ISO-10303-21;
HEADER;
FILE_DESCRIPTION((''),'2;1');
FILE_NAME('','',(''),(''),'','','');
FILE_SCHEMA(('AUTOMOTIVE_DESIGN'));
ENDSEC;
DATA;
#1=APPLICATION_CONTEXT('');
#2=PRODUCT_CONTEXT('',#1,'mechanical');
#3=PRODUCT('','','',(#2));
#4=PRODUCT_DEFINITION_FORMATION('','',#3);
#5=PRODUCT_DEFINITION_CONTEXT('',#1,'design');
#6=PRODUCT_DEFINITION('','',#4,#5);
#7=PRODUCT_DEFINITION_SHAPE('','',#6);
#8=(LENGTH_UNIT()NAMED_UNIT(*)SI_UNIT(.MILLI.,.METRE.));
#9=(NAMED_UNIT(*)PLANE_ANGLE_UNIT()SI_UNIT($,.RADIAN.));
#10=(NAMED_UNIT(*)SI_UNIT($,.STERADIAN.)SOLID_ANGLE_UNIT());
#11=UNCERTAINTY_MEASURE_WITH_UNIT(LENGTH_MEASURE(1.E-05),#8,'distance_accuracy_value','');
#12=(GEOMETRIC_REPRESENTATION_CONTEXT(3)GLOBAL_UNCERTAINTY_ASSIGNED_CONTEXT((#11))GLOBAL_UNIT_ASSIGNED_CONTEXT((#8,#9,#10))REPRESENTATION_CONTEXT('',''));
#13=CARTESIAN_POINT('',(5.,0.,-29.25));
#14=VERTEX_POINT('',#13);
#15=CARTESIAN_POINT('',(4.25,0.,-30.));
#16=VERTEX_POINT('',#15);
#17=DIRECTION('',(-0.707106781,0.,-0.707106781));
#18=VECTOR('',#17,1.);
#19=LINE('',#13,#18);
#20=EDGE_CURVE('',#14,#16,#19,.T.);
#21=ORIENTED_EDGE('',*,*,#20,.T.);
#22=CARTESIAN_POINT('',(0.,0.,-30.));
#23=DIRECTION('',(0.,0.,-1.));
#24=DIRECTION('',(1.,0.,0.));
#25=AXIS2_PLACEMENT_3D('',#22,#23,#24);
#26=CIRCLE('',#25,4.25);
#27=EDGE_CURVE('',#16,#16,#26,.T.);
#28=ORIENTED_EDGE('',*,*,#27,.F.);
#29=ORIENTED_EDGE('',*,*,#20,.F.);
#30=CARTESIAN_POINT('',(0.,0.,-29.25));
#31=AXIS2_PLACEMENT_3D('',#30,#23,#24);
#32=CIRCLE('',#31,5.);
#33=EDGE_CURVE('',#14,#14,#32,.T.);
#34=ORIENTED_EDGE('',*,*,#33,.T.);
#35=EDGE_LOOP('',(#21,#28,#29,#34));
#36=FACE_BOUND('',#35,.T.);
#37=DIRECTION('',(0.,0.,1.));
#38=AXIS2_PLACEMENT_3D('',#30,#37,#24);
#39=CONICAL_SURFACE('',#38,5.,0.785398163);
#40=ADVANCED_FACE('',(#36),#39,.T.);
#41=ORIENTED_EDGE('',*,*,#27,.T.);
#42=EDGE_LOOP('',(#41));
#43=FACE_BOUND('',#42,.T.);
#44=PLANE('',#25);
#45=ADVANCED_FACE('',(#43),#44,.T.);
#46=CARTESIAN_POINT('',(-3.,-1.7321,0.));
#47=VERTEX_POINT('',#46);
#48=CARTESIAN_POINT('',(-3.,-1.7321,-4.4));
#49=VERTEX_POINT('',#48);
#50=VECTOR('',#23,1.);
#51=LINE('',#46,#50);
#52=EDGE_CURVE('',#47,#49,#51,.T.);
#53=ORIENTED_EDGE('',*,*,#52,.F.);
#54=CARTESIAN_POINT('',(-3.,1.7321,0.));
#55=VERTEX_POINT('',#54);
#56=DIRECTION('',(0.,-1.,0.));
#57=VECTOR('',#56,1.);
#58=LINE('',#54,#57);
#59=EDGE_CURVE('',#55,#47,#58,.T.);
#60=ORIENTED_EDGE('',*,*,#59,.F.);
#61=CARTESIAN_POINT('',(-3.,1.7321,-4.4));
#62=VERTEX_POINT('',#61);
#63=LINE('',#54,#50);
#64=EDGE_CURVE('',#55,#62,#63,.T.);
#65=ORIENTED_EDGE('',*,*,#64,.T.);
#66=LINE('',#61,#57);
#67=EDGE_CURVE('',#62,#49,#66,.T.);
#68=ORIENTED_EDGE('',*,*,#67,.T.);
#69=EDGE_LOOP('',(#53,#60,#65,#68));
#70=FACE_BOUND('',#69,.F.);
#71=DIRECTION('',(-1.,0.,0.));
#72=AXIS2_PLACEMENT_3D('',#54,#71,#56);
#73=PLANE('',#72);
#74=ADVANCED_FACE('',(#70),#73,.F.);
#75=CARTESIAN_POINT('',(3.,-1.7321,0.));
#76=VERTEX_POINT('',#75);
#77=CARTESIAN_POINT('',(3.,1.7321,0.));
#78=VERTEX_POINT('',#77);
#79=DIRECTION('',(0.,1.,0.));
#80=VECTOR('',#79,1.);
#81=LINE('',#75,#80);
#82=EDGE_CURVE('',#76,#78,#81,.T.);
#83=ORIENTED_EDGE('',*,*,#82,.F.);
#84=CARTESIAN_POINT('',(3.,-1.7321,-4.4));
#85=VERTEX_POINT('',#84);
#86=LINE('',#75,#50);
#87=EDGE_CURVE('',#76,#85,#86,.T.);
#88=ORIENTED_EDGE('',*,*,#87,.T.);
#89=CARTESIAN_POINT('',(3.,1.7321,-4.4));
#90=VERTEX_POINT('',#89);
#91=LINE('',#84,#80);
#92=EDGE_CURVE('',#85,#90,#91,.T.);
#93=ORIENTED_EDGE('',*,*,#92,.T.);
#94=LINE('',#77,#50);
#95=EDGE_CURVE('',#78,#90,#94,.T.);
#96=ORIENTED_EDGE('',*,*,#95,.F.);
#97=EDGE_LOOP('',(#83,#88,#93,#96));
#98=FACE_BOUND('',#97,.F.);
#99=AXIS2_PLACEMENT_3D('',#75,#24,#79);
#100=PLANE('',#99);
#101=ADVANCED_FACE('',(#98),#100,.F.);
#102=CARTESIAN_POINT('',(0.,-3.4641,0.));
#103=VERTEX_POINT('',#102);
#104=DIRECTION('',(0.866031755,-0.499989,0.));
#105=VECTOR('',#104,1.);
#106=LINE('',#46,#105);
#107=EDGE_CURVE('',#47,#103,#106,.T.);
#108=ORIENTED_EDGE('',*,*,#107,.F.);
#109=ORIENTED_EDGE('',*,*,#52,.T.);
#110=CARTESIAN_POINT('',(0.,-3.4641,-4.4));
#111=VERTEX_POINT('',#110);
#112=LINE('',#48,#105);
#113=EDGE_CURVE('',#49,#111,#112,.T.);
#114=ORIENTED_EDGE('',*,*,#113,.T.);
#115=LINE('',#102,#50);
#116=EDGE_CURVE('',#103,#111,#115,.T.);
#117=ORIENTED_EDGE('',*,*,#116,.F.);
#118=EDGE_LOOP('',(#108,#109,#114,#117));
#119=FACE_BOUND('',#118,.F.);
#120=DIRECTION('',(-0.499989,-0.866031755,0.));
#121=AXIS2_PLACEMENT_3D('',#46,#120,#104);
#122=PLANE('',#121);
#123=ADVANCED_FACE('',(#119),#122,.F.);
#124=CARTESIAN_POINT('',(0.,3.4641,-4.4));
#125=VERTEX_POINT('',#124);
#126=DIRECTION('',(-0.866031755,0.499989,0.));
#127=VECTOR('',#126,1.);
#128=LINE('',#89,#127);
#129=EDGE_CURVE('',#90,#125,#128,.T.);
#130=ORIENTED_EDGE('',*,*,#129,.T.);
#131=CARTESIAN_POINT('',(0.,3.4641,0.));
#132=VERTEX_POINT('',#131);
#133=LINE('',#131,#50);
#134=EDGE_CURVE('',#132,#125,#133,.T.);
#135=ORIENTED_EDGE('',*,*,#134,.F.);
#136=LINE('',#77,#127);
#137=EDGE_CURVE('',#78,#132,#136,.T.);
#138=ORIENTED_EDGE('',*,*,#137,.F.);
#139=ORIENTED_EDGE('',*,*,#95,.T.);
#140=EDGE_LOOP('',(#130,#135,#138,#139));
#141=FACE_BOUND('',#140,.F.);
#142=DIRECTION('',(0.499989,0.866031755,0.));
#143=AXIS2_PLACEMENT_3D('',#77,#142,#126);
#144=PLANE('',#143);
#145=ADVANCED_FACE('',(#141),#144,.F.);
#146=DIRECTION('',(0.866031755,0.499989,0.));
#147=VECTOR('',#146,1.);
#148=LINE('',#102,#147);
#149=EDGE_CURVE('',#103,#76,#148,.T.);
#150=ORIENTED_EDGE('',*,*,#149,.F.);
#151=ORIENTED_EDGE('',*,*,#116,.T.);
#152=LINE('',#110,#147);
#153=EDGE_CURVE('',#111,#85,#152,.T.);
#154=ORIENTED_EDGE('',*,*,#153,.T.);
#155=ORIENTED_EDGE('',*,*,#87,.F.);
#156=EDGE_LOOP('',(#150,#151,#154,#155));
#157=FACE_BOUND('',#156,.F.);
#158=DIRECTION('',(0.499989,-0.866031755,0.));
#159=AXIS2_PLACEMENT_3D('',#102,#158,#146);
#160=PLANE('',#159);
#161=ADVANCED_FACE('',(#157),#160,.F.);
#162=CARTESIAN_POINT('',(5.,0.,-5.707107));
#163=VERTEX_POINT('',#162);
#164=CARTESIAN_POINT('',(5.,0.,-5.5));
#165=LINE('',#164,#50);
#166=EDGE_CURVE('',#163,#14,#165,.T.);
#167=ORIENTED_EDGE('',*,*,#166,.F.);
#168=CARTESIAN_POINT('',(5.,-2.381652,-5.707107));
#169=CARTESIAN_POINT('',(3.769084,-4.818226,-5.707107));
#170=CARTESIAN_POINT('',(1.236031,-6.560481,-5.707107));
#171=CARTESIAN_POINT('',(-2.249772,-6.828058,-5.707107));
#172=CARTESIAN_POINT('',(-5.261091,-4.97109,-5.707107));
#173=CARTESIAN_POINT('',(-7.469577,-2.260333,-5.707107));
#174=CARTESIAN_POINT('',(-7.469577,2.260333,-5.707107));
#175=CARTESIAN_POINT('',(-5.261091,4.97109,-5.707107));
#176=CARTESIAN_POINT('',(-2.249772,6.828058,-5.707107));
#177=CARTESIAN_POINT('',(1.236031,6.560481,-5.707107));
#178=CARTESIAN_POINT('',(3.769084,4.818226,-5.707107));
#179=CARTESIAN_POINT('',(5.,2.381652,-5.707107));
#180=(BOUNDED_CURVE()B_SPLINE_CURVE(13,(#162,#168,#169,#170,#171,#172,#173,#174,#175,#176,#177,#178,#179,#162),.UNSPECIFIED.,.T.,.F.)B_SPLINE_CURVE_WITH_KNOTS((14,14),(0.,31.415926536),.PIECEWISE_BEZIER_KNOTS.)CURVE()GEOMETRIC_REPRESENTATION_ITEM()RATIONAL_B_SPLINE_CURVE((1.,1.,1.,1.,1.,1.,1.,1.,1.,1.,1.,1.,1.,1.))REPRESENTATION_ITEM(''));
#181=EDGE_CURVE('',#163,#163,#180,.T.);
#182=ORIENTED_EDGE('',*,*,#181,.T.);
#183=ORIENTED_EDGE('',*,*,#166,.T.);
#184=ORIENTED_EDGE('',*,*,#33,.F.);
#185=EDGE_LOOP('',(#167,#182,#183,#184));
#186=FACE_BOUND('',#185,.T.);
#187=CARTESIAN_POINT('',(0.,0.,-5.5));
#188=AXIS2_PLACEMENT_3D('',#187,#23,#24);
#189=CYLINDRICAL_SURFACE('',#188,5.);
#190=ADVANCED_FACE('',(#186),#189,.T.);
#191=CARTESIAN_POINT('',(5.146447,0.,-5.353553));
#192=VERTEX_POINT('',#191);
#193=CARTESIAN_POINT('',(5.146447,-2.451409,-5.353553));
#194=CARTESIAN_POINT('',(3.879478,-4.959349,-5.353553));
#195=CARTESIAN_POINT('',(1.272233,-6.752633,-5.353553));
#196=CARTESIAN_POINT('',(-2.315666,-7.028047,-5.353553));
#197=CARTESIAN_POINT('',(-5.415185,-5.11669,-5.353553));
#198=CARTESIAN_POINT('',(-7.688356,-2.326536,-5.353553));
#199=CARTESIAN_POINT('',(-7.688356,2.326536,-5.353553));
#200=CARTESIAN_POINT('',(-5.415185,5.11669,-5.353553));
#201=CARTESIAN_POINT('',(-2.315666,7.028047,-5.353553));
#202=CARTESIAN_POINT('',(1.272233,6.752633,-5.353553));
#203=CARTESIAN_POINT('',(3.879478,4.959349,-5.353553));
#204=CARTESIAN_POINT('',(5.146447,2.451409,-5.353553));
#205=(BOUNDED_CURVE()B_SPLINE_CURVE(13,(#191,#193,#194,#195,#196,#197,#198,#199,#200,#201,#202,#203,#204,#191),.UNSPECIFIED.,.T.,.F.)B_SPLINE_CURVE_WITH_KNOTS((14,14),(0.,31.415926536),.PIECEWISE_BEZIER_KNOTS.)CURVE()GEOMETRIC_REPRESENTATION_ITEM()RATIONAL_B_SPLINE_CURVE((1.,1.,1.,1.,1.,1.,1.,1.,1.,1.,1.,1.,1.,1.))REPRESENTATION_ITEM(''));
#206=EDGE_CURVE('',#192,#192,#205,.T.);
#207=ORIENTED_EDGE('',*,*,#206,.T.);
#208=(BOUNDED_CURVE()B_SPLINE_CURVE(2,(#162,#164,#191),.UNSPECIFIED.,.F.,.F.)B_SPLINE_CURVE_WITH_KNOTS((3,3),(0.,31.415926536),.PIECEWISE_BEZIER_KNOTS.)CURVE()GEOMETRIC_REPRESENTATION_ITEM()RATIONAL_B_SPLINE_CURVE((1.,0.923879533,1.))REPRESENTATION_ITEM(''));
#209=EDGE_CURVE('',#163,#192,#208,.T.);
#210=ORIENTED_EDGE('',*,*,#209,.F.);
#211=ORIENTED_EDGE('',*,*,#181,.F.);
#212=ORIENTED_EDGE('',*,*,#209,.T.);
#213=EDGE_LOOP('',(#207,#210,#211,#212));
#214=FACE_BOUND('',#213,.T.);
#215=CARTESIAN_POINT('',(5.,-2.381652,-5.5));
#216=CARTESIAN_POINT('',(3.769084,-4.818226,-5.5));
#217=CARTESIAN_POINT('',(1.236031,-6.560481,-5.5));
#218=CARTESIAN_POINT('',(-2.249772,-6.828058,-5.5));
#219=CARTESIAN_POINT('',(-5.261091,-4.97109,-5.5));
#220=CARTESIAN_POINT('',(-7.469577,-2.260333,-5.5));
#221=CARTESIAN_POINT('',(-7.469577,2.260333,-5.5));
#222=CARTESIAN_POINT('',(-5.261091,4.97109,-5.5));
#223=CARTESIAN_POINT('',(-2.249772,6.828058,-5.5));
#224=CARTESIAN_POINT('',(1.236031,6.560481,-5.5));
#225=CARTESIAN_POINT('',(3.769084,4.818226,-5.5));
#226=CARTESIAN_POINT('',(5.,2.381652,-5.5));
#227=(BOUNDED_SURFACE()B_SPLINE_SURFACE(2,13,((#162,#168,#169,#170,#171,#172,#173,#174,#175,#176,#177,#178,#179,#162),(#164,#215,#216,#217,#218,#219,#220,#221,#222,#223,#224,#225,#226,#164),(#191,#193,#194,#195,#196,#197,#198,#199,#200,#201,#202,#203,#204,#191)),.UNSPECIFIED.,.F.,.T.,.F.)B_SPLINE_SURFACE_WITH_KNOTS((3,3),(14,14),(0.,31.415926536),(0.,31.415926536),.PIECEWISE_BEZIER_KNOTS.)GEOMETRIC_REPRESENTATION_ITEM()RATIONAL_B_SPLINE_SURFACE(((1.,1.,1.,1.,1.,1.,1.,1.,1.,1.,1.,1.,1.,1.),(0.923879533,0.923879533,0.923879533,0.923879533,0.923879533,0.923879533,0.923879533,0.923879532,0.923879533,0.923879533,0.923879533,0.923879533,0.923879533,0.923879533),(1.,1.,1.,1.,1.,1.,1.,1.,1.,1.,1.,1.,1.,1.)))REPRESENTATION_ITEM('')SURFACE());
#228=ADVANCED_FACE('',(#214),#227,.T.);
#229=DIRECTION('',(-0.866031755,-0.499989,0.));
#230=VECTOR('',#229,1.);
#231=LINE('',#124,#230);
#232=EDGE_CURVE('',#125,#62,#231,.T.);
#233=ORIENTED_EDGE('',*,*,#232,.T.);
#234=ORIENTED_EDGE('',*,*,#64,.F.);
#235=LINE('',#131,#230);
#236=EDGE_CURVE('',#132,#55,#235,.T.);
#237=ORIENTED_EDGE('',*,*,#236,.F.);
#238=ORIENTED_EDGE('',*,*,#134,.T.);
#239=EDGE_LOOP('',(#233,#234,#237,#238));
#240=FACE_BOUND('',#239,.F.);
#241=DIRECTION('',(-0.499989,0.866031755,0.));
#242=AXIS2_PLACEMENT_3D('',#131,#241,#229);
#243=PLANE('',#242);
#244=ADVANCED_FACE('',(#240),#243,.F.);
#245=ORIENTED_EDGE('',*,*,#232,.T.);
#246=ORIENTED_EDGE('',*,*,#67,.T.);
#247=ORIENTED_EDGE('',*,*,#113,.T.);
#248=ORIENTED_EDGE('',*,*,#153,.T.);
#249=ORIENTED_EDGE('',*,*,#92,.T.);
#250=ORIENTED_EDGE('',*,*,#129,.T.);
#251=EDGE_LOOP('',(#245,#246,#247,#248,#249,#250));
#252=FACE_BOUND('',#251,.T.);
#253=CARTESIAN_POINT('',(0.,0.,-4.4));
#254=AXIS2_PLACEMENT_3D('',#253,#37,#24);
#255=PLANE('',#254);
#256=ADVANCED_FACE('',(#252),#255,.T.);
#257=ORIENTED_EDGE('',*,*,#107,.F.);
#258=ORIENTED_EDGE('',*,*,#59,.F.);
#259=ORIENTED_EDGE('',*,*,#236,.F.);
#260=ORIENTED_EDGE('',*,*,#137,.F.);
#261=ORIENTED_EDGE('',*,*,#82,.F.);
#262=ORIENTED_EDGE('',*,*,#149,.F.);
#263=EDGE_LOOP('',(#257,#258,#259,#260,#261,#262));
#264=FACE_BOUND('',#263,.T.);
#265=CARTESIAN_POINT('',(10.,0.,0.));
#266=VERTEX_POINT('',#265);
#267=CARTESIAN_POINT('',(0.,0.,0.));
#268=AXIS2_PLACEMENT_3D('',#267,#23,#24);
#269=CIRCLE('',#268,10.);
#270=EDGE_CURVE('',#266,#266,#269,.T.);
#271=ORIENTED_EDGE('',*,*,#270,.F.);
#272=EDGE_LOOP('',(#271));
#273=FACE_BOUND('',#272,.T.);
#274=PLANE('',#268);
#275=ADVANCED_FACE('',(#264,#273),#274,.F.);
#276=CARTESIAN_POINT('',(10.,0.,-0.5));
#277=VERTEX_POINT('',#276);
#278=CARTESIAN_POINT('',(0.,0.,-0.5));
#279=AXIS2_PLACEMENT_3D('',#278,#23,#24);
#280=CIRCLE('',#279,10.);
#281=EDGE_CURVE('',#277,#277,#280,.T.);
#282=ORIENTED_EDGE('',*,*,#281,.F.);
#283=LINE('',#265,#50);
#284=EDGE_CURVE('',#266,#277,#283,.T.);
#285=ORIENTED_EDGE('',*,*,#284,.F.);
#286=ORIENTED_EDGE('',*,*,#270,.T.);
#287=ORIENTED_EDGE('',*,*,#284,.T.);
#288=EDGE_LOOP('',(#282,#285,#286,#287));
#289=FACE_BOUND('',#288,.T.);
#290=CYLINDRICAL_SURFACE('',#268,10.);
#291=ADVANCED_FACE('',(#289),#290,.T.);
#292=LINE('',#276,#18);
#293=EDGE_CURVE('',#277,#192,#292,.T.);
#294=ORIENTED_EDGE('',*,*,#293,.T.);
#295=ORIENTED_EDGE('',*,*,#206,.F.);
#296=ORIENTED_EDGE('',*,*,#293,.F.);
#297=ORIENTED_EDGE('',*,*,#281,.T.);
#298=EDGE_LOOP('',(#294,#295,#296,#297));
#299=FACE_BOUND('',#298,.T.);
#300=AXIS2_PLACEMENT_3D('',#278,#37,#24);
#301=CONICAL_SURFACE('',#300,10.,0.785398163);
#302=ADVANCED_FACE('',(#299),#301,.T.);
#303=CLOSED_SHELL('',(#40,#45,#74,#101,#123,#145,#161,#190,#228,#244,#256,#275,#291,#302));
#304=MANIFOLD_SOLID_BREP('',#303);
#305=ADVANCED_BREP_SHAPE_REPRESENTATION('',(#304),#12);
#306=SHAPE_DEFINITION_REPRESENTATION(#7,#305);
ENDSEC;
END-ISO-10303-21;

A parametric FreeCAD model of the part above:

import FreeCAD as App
import Part
import Sketcher
from FreeCAD import Vector
Q = App.Units.Quantity


def edges_at(feature, points):
    """Names of the edges that pass closest to the given points."""
    edges = feature.Shape.Edges
    near = lambda p: min(range(len(edges)), key=lambda i: edges[i].distToShape(Part.Vertex(*p))[0])
    return sorted({f"Edge{near(p) + 1}" for p in points})


def add_polygon(sketch, points):
    """Adds a closed chain of lines whose ends are joined by coincident constraints."""
    first, n = sketch.GeometryCount, len(points)
    for a, b in zip(points, points[1:] + points[:1]):
        sketch.addGeometry(Part.LineSegment(App.Vector(*a, 0), App.Vector(*b, 0)), False)
    for i in range(n):
        sketch.addConstraint(Sketcher.Constraint("Coincident", first + i, 2, first + (i + 1) % n, 1))

doc = App.newDocument("Part")
body = doc.addObject("PartDesign::Body", "Body")

sketch1 = doc.addObject("Sketcher::SketchObject", "Sketch")
body.addObject(sketch1)
sketch1.AttachmentSupport = (doc.XZ_Plane, [""])
sketch1.MapMode = "FlatFace"
add_polygon(sketch1, [(5, -5.5), (5, -30), (0, -30), (0, 0), (10, 0), (10, -0.5)])
sketch1.addConstraint(Sketcher.Constraint("Vertical", 0))
sketch1.addConstraint(Sketcher.Constraint("Horizontal", 1))
sketch1.addConstraint(Sketcher.Constraint("Vertical", 2))
sketch1.addConstraint(Sketcher.Constraint("Horizontal", 3))
sketch1.addConstraint(Sketcher.Constraint("Vertical", 4))
sketch1.addConstraint(Sketcher.Constraint("Coincident", 2, 2, -1, 1))
sketch1.addConstraint(Sketcher.Constraint("DistanceX", 1, 2, 1, 1, Q("5 mm")))
sketch1.addConstraint(Sketcher.Constraint("DistanceX", 3, 1, 3, 2, Q("10 mm")))
sketch1.addConstraint(Sketcher.Constraint("DistanceY", 2, 1, 2, 2, Q("30 mm")))
sketch1.addConstraint(Sketcher.Constraint("DistanceY", 4, 2, 4, 1, Q("0.5 mm")))
sketch1.addConstraint(Sketcher.Constraint("DistanceY", 5, 2, 4, 2, Q("5 mm")))
revolution = doc.addObject("PartDesign::Revolution", "Revolution")
body.addObject(revolution)
revolution.Profile = sketch1
revolution.ReferenceAxis = (sketch1, ["V_Axis"])
revolution.Angle = 360

sketch2 = doc.addObject("Sketcher::SketchObject", "Sketch001")
body.addObject(sketch2)
sketch2.AttachmentSupport = (doc.XY_Plane, [""])
sketch2.MapMode = "FlatFace"
add_polygon(sketch2, [(0, 3.5), (-3, 1.7), (-3, -1.7), (0, -3.5), (3, -1.7), (3, 1.7)])
sketch2.addConstraint(Sketcher.Constraint("Vertical", 1))
sketch2.addConstraint(Sketcher.Constraint("Vertical", 4))
sketch2.addConstraint(Sketcher.Constraint("Symmetric", 0, 2, 3, 2, -1, 1))
sketch2.addConstraint(Sketcher.Constraint("Symmetric", 2, 2, 5, 2, -1, 1))
sketch2.addConstraint(Sketcher.Constraint("PointOnObject", 2, 2, -2))
sketch2.addConstraint(Sketcher.Constraint("Parallel", 2, 5))
sketch2.addConstraint(Sketcher.Constraint("Horizontal", 1, 2, 3, 2))
sketch2.addConstraint(Sketcher.Constraint("DistanceX", 1, 2, 3, 2, Q("6 mm")))
sketch2.addConstraint(Sketcher.Constraint("Angle", 0, Q("-150.0007 deg")))
sketch2.addConstraint(Sketcher.Constraint("DistanceY", 1, 2, 1, 1, Q("3.4642 mm")))
pocket1 = doc.addObject("PartDesign::Pocket", "Pocket")
body.addObject(pocket1)
pocket1.Profile = sketch2
pocket1.Length = 4.4
doc.recompute()

fillet = doc.addObject("PartDesign::Fillet", "Fillet")
body.addObject(fillet)
fillet.Base = (pocket1, edges_at(pocket1, [(-5, 0, -5.5)]))
fillet.Radius = 0.5
doc.recompute()

chamfer = doc.addObject("PartDesign::Chamfer", "Chamfer")
body.addObject(chamfer)
chamfer.Base = (fillet, edges_at(fillet, [(-5, 0, -30)]))
chamfer.Size = 0.75

doc.recompute()
